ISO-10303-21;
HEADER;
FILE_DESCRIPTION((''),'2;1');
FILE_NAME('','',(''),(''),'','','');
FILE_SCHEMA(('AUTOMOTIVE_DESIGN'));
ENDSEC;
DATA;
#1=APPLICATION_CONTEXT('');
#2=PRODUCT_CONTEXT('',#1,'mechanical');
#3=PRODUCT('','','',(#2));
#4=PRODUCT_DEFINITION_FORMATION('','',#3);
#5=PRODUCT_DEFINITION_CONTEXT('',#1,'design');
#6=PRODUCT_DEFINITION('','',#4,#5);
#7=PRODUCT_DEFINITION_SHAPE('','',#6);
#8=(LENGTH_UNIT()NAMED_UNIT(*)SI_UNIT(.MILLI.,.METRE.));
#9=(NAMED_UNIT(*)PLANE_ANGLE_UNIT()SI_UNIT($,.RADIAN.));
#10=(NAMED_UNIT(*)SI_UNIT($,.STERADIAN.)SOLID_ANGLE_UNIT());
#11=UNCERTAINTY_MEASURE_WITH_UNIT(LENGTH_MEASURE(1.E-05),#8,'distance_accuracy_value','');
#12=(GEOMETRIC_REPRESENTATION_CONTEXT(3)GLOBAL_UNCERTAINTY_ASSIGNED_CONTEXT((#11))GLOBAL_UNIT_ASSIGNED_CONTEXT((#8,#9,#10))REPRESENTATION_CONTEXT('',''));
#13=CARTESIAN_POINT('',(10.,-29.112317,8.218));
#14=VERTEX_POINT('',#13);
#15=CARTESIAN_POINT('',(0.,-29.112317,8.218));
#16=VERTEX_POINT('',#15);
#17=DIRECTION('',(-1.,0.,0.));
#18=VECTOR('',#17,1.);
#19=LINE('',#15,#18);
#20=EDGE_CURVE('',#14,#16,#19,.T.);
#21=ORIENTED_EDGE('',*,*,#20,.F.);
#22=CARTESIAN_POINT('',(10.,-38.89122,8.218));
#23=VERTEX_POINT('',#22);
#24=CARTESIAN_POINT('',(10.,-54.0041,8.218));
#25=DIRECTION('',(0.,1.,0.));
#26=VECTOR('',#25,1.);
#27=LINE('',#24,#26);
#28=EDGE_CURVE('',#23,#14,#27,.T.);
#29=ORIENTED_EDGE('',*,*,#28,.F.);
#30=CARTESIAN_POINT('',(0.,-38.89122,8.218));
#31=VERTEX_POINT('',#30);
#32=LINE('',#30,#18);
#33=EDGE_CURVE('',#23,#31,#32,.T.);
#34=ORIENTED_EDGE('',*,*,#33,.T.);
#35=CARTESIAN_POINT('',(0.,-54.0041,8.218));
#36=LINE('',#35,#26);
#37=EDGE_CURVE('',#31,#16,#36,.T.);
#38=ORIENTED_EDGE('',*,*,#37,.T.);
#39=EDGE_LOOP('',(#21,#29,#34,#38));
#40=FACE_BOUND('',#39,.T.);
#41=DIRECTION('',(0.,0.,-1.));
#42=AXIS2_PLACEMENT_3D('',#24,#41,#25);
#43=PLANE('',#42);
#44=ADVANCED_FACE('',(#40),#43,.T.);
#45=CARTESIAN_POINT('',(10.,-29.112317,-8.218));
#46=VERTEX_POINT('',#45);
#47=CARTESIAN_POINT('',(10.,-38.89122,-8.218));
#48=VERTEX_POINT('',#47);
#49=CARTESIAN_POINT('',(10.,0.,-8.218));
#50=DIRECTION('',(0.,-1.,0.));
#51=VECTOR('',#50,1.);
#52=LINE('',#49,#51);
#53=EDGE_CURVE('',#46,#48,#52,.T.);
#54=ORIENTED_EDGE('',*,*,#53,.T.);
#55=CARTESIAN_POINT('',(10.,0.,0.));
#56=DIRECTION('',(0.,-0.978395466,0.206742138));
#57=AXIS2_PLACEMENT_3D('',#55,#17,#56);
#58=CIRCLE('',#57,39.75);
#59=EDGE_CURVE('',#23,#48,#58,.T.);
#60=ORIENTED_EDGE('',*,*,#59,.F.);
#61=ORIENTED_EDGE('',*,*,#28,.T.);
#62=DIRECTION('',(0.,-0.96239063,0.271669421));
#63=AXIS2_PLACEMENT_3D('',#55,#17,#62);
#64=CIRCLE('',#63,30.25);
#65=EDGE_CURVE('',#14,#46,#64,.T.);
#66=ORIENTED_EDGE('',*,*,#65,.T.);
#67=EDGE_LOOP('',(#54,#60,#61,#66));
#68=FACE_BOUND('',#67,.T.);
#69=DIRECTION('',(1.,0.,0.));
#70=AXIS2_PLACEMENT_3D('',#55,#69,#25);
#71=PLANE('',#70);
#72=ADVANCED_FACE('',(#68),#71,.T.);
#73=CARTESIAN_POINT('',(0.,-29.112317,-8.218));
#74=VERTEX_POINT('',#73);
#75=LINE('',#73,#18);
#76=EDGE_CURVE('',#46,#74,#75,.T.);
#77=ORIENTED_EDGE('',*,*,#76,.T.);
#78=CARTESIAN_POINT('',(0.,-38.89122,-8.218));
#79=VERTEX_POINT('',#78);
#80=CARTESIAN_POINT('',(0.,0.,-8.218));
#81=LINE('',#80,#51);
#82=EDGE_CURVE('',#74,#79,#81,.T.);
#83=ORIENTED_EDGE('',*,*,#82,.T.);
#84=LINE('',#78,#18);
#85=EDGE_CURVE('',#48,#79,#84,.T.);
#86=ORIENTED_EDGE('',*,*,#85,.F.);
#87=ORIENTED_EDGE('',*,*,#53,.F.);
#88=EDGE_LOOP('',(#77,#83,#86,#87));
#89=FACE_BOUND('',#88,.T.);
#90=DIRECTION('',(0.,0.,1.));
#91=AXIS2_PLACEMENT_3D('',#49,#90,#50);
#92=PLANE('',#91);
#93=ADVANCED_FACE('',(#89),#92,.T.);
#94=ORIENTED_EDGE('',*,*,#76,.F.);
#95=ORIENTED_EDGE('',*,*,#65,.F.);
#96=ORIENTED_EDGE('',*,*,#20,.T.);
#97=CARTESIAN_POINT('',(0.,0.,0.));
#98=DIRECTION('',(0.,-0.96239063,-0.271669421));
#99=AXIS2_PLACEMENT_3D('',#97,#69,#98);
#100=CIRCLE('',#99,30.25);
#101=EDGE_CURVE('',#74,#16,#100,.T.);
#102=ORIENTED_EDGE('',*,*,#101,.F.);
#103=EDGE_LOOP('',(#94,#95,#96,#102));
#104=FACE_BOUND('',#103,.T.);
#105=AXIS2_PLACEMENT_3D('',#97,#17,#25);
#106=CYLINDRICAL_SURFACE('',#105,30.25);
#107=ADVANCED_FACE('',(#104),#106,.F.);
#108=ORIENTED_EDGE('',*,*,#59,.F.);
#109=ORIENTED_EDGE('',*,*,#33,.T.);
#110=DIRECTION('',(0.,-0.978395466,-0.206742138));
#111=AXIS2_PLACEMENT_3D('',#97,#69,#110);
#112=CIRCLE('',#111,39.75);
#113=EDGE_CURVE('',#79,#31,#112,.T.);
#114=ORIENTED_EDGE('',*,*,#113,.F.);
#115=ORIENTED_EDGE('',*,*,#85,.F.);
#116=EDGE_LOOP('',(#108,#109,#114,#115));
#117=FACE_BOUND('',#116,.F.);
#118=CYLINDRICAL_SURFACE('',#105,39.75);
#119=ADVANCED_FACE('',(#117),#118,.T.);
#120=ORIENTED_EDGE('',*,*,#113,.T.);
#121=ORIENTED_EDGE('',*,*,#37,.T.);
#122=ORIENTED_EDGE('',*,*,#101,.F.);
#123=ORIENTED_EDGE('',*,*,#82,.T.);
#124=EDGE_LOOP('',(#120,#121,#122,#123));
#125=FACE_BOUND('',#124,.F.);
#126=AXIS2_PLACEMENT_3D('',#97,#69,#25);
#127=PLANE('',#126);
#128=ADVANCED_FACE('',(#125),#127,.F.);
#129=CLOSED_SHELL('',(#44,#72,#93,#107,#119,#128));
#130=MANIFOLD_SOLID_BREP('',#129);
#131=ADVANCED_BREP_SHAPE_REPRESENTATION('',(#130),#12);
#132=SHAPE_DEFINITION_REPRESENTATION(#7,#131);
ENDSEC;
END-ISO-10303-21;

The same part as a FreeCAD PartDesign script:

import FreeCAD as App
import Part
import Sketcher
from FreeCAD import Vector
Q = App.Units.Quantity


def add_polygon(sketch, points):
    """Adds a closed chain of lines whose ends are joined by coincident constraints."""
    first, n = sketch.GeometryCount, len(points)
    for a, b in zip(points, points[1:] + points[:1]):
        sketch.addGeometry(Part.LineSegment(App.Vector(*a, 0), App.Vector(*b, 0)), False)
    for i in range(n):
        sketch.addConstraint(Sketcher.Constraint("Coincident", first + i, 2, first + (i + 1) % n, 1))

doc = App.newDocument("Part")
body = doc.addObject("PartDesign::Body", "Body")

sketch1 = body.newObject("Sketcher::SketchObject", "Sketch")
sketch1.AttachmentSupport = (doc.getObject("YZ_Plane"), [""])
sketch1.MapMode = "FlatFace"
sketch1.addGeometry(Part.Circle(Vector(0, 0, 0), Vector(0, 0, 1), 40), False)
sketch1.addGeometry(Part.Circle(Vector(0, 0, 0), Vector(0, 0, 1), 30), False)
sketch1.addConstraint(Sketcher.Constraint("Coincident", 0, 3, -1, 1))
sketch1.addConstraint(Sketcher.Constraint("Coincident", 1, 3, -1, 1))
sketch1.addConstraint(Sketcher.Constraint("Diameter", 1, Q("60.5 mm")))
sketch1.addConstraint(Sketcher.Constraint("Diameter", 0, Q("79.5 mm")))
pad1 = body.newObject("PartDesign::Pad", "Pad")
pad1.Profile = sketch1
pad1.Length = 10

sketch2 = body.newObject("Sketcher::SketchObject", "Sketch001")
sketch2.AttachmentSupport = (doc.getObject("YZ_Plane"), [""])
sketch2.MapMode = "FlatFace"
sketch2.AttachmentOffset = App.Placement(Vector(0, 0, 10), App.Rotation())
add_polygon(sketch2, [(0, 8), (-54, 8), (-54, -8), (0, -8)])
sketch2.addConstraint(Sketcher.Constraint("Horizontal", 0))
sketch2.addConstraint(Sketcher.Constraint("Vertical", 1))
sketch2.addConstraint(Sketcher.Constraint("Horizontal", 2))
sketch2.addConstraint(Sketcher.Constraint("Vertical", 3))
sketch2.addConstraint(Sketcher.Constraint("Symmetric", 2, 2, 3, 2, -1, 1))
sketch2.addConstraint(Sketcher.Constraint("DistanceY", -1, 1, 0, 2, Q("8.218 mm")))
sketch2.addConstraint(Sketcher.Constraint("DistanceX", 0, 2, 0, 1, Q("54.004 mm")))
pocket1 = body.newObject("PartDesign::Pocket", "Pocket")
pocket1.Profile = sketch2
pocket1.Length = 10

doc.recompute()
